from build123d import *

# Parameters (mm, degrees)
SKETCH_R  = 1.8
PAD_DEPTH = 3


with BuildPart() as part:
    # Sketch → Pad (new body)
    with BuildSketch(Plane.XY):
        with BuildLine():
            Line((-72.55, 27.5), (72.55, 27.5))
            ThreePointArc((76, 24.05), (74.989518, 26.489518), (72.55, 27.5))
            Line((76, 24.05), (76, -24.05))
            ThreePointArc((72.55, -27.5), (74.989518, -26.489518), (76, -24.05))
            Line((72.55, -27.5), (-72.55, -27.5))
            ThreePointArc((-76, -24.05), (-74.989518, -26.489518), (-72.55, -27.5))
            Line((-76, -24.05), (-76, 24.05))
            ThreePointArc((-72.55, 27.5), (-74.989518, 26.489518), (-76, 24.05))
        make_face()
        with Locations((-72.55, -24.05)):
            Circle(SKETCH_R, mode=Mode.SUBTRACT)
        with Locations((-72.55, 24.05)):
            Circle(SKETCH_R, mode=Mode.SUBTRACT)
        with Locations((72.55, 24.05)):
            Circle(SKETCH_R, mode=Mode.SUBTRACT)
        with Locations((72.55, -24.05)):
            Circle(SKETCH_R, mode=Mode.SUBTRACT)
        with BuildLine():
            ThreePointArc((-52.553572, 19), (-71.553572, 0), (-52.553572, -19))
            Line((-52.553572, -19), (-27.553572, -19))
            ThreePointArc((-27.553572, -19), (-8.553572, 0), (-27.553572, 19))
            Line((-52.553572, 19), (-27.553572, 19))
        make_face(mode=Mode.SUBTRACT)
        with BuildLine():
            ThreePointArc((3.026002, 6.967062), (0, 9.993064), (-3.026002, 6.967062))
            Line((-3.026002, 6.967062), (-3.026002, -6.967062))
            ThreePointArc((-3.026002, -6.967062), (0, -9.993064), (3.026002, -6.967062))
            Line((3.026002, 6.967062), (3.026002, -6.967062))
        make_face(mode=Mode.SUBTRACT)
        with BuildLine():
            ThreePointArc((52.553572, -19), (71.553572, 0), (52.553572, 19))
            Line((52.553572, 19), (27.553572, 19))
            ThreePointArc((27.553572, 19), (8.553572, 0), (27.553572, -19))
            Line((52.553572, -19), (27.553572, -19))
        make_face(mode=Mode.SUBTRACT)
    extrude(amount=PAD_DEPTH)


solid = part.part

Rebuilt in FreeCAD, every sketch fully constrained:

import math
import FreeCAD as App
import Part
import Sketcher

V = App.Vector
Q = App.Units.Quantity

doc = App.newDocument("Part")
body = doc.addObject("PartDesign::Body", "Body")

# Sketch on XY plane
sketch1 = doc.addObject("Sketcher::SketchObject", "Sketch")
body.addObject(sketch1)
sketch1.AttachmentSupport = (doc.XY_Plane, [""])
sketch1.MapMode = "FlatFace"
sketch1.addGeometry(Part.LineSegment(V(72.5, 27.5, 0), V(-72.5, 27.5, 0)), False)
sketch1.addGeometry(Part.ArcOfCircle(Part.Circle(V(-72.5, 24, 0), V(0, 0, 1), 3.5), math.radians(90), math.radians(180)), False)
sketch1.addGeometry(Part.LineSegment(V(-76, 24.1, 0), V(-76, -24.1, 0)), False)
sketch1.addGeometry(Part.ArcOfCircle(Part.Circle(V(-72.5, -24, 0), V(0, 0, 1), 3.5), math.radians(-180), math.radians(-90)), False)
sketch1.addGeometry(Part.LineSegment(V(-72.5, -27.5, 0), V(72.5, -27.5, 0)), False)
sketch1.addGeometry(Part.ArcOfCircle(Part.Circle(V(72.5, -24, 0), V(0, 0, 1), 3.5), math.radians(-90), math.radians(0)), False)
sketch1.addGeometry(Part.LineSegment(V(76, -24.1, 0), V(76, 24.1, 0)), False)
sketch1.addGeometry(Part.ArcOfCircle(Part.Circle(V(72.5, 24, 0), V(0, 0, 1), 3.5), math.radians(0), math.radians(90)), False)
sketch1.addGeometry(Part.Circle(V(72.5, -24.1, 0), V(0, 0, 1), 1.8), False)
sketch1.addGeometry(Part.Circle(V(-72.5, -24.1, 0), V(0, 0, 1), 1.8), False)
sketch1.addGeometry(Part.LineSegment(V(-52.6, 19, 0), V(-27.6, 19, 0)), False)
sketch1.addGeometry(Part.ArcOfCircle(Part.Circle(V(-27.6, 0, 0), V(0, 0, 1), 19), math.radians(-90), math.radians(90)), False)
sketch1.addGeometry(Part.LineSegment(V(-27.6, -19, 0), V(-52.6, -19, 0)), False)
sketch1.addGeometry(Part.ArcOfCircle(Part.Circle(V(-52.6, 0, 0), V(0, 0, 1), 19), math.radians(90), math.radians(270)), False)
sketch1.addGeometry(Part.LineSegment(V(52.6, -19, 0), V(27.6, -19, 0)), False)
sketch1.addGeometry(Part.ArcOfCircle(Part.Circle(V(27.6, 0, 0), V(0, 0, 1), 19), math.radians(90), math.radians(270)), False)
sketch1.addGeometry(Part.LineSegment(V(27.6, 19, 0), V(52.6, 19, 0)), False)
sketch1.addGeometry(Part.ArcOfCircle(Part.Circle(V(52.6, 0, 0), V(0, 0, 1), 19), math.radians(-90), math.radians(90)), False)
sketch1.addGeometry(Part.Circle(V(72.5, 24.1, 0), V(0, 0, 1), 1.8), False)
sketch1.addGeometry(Part.LineSegment(V(3, 7, 0), V(3, -7, 0)), False)
sketch1.addGeometry(Part.ArcOfCircle(Part.Circle(V(0, -7, 0), V(0, 0, 1), 3), math.radians(180), math.radians(360)), False)
sketch1.addGeometry(Part.LineSegment(V(-3, -7, 0), V(-3, 7, 0)), False)
sketch1.addGeometry(Part.ArcOfCircle(Part.Circle(V(0, 7, 0), V(0, 0, 1), 3), math.radians(0), math.radians(180)), False)
sketch1.addGeometry(Part.Circle(V(-72.5, 24.1, 0), V(0, 0, 1), 1.8), False)
sketch1.addConstraint(Sketcher.Constraint("Tangent", 0, 2, 1, 1))
sketch1.addConstraint(Sketcher.Constraint("Tangent", 1, 2, 2, 1))
sketch1.addConstraint(Sketcher.Constraint("Tangent", 2, 2, 3, 1))
sketch1.addConstraint(Sketcher.Constraint("Tangent", 3, 2, 4, 1))
sketch1.addConstraint(Sketcher.Constraint("Tangent", 4, 2, 5, 1))
sketch1.addConstraint(Sketcher.Constraint("Tangent", 5, 2, 6, 1))
sketch1.addConstraint(Sketcher.Constraint("Tangent", 6, 2, 7, 1))
sketch1.addConstraint(Sketcher.Constraint("Tangent", 7, 2, 0, 1))
sketch1.addConstraint(Sketcher.Constraint("Tangent", 10, 2, 11, 2))
sketch1.addConstraint(Sketcher.Constraint("Tangent", 11, 1, 12, 1))
sketch1.addConstraint(Sketcher.Constraint("Tangent", 12, 2, 13, 2))
sketch1.addConstraint(Sketcher.Constraint("Tangent", 13, 1, 10, 1))
sketch1.addConstraint(Sketcher.Constraint("Tangent", 14, 2, 15, 2))
sketch1.addConstraint(Sketcher.Constraint("Tangent", 15, 1, 16, 1))
sketch1.addConstraint(Sketcher.Constraint("Tangent", 16, 2, 17, 2))
sketch1.addConstraint(Sketcher.Constraint("Tangent", 17, 1, 14, 1))
sketch1.addConstraint(Sketcher.Constraint("Tangent", 19, 2, 20, 2))
sketch1.addConstraint(Sketcher.Constraint("Tangent", 20, 1, 21, 1))
sketch1.addConstraint(Sketcher.Constraint("Tangent", 21, 2, 22, 2))
sketch1.addConstraint(Sketcher.Constraint("Tangent", 22, 1, 19, 1))
sketch1.addConstraint(Sketcher.Constraint("Horizontal", 0))
sketch1.addConstraint(Sketcher.Constraint("Vertical", 2))
sketch1.addConstraint(Sketcher.Constraint("Horizontal", 4))
sketch1.addConstraint(Sketcher.Constraint("Vertical", 6))
sketch1.addConstraint(Sketcher.Constraint("Horizontal", 10))
sketch1.addConstraint(Sketcher.Constraint("Horizontal", 12))
sketch1.addConstraint(Sketcher.Constraint("Horizontal", 14))
sketch1.addConstraint(Sketcher.Constraint("Horizontal", 16))
sketch1.addConstraint(Sketcher.Constraint("Vertical", 19))
sketch1.addConstraint(Sketcher.Constraint("Vertical", 21))
sketch1.addConstraint(Sketcher.Constraint("Coincident", 8, 3, 5, 3))
sketch1.addConstraint(Sketcher.Constraint("Coincident", 9, 3, 3, 3))
sketch1.addConstraint(Sketcher.Constraint("Coincident", 18, 3, 7, 3))
sketch1.addConstraint(Sketcher.Constraint("Coincident", 23, 3, 1, 3))
sketch1.addConstraint(Sketcher.Constraint("Equal", 1, 3))
sketch1.addConstraint(Sketcher.Constraint("Equal", 3, 5))
sketch1.addConstraint(Sketcher.Constraint("Equal", 5, 7))
sketch1.addConstraint(Sketcher.Constraint("Equal", 8, 9))
sketch1.addConstraint(Sketcher.Constraint("Equal", 13, 15))
sketch1.addConstraint(Sketcher.Constraint("Equal", 9, 18))
sketch1.addConstraint(Sketcher.Constraint("Equal", 18, 23))
sketch1.addConstraint(Sketcher.Constraint("Symmetric", 1, 3, 5, 3, -1, 1))
sketch1.addConstraint(Sketcher.Constraint("Symmetric", 11, 3, 15, 3, -1, 1))
sketch1.addConstraint(Sketcher.Constraint("Symmetric", 20, 3, 22, 3, -1, 1))
sketch1.addConstraint(Sketcher.Constraint("Symmetric", 13, 3, 17, 3, -2))
sketch1.addConstraint(Sketcher.Constraint("Radius", 11, Q("19 mm")))
sketch1.addConstraint(Sketcher.Constraint("Diameter", 8, Q("3.6 mm")))
sketch1.addConstraint(Sketcher.Constraint("DistanceX", 10, 1, 10, 2, Q("25 mm")))
sketch1.addConstraint(Sketcher.Constraint("Radius", 1, Q("3.450001 mm")))
sketch1.addConstraint(Sketcher.Constraint("DistanceX", 0, 2, 0, 1, Q("145.1 mm")))
sketch1.addConstraint(Sketcher.Constraint("DistanceY", 2, 2, 2, 1, Q("48.1 mm")))
sketch1.addConstraint(Sketcher.Constraint("Radius", 20, Q("3.026002 mm")))
sketch1.addConstraint(Sketcher.Constraint("DistanceY", 19, 2, 19, 1, Q("13.934124 mm")))
sketch1.addConstraint(Sketcher.Constraint("DistanceX", 11, 3, -1, 1, Q("27.553572 mm")))
pad1 = doc.addObject("PartDesign::Pad", "Pad")
body.addObject(pad1)
pad1.Profile = sketch1
pad1.Length = 3

doc.recompute()
